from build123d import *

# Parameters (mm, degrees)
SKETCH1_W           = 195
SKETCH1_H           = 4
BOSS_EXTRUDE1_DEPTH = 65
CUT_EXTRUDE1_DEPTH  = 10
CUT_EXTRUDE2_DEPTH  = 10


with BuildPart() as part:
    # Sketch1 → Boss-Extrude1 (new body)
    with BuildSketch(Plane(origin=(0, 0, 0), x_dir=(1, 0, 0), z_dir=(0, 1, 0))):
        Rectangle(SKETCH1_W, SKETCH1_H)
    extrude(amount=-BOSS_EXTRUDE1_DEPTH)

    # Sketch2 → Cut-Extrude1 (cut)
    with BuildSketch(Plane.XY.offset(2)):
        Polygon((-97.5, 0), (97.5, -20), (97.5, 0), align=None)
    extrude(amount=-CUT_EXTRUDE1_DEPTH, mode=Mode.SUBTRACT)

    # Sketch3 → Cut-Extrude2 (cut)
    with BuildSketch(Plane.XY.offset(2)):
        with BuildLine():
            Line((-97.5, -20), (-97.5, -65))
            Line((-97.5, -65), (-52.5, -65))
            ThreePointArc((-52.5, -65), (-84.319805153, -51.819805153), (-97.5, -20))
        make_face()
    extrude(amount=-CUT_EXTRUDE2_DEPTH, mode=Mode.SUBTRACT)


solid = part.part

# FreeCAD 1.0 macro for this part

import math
import FreeCAD as App
import Part
import Sketcher

V = App.Vector


def add_polygon(sketch, points):
    """Adds a closed chain of lines whose ends are joined by coincident constraints."""
    first, n = sketch.GeometryCount, len(points)
    for a, b in zip(points, points[1:] + points[:1]):
        sketch.addGeometry(Part.LineSegment(App.Vector(*a, 0), App.Vector(*b, 0)), False)
    for i in range(n):
        sketch.addConstraint(Sketcher.Constraint("Coincident", first + i, 2, first + (i + 1) % n, 1))

doc = App.newDocument("Part")
body = doc.addObject("PartDesign::Body", "Body")

# Sketch on XZ plane
sketch1 = doc.addObject("Sketcher::SketchObject", "Sketch")
body.addObject(sketch1)
sketch1.AttachmentSupport = (doc.XZ_Plane, [""])
sketch1.MapMode = "FlatFace"
add_polygon(sketch1, [(-97.5, -2), (-97.5, 2), (97.5, 2), (97.5, -2)])  # lines 0-3
sketch1.addConstraint([
    Sketcher.Constraint("Vertical", 0),
    Sketcher.Constraint("Horizontal", 1),
    Sketcher.Constraint("Vertical", 2),
    Sketcher.Constraint("Horizontal", 3),
    Sketcher.Constraint("Symmetric", 0, 2, 2, 2, -1, 1),
    Sketcher.Constraint("DistanceX", 1, 1, 1, 2, 195.0),
    Sketcher.Constraint("DistanceY", 0, 1, 0, 2, 4.0),
])
pad1 = doc.addObject("PartDesign::Pad", "Pad")
body.addObject(pad1)
pad1.Profile = sketch1
pad1.Length = 65

# Sketch on XY plane
sketch2 = doc.addObject("Sketcher::SketchObject", "Sketch001")
body.addObject(sketch2)
sketch2.AttachmentSupport = (doc.XY_Plane, [""])
sketch2.MapMode = "FlatFace"
sketch2.AttachmentOffset = App.Placement(V(0, 0, 2), App.Rotation())
add_polygon(sketch2, [(-97.5, 0), (97.5, -20), (97.5, 0)])  # lines 0-2
sketch2.addConstraint([
    Sketcher.Constraint("Vertical", 1),
    Sketcher.Constraint("Horizontal", 2),
    Sketcher.Constraint("Symmetric", 1, 2, 2, 2, -1, 1),
    Sketcher.Constraint("DistanceX", 2, 2, 2, 1, 195.0),
    Sketcher.Constraint("DistanceY", 1, 1, 1, 2, 20.0),
])
pocket1 = doc.addObject("PartDesign::Pocket", "Pocket")
body.addObject(pocket1)
pocket1.Profile = sketch2
pocket1.Length = 10

# Sketch on XY plane
sketch3 = doc.addObject("Sketcher::SketchObject", "Sketch002")
body.addObject(sketch3)
sketch3.AttachmentSupport = (doc.XY_Plane, [""])
sketch3.MapMode = "FlatFace"
sketch3.AttachmentOffset = App.Placement(V(0, 0, 2), App.Rotation())
sketch3.addGeometry([
    Part.LineSegment(V(-97.5, -20, 0), V(-97.5, -65, 0)),
    Part.LineSegment(V(-97.5, -65, 0), V(-52.5, -65, 0)),
    Part.ArcOfCircle(Part.Circle(V(-52.5, -20, 0), V(0, 0, 1), 45), math.radians(-180), math.radians(-90)),
], False)
sketch3.addConstraint([
    Sketcher.Constraint("Coincident", 0, 2, 1, 1),
    Sketcher.Constraint("Tangent", 1, 2, 2, 2),
    Sketcher.Constraint("Tangent", 2, 1, 0, 1),
    Sketcher.Constraint("Vertical", 0),
    Sketcher.Constraint("Horizontal", 1),
    Sketcher.Constraint("Radius", 2, 45.0),
    Sketcher.Constraint("DistanceY", 2, 3, -1, 1, 20.0),
    Sketcher.Constraint("DistanceX", 2, 3, -1, 1, 52.5),
])
pocket2 = doc.addObject("PartDesign::Pocket", "Pocket001")
body.addObject(pocket2)
pocket2.Profile = sketch3
pocket2.Length = 10

doc.recompute()
